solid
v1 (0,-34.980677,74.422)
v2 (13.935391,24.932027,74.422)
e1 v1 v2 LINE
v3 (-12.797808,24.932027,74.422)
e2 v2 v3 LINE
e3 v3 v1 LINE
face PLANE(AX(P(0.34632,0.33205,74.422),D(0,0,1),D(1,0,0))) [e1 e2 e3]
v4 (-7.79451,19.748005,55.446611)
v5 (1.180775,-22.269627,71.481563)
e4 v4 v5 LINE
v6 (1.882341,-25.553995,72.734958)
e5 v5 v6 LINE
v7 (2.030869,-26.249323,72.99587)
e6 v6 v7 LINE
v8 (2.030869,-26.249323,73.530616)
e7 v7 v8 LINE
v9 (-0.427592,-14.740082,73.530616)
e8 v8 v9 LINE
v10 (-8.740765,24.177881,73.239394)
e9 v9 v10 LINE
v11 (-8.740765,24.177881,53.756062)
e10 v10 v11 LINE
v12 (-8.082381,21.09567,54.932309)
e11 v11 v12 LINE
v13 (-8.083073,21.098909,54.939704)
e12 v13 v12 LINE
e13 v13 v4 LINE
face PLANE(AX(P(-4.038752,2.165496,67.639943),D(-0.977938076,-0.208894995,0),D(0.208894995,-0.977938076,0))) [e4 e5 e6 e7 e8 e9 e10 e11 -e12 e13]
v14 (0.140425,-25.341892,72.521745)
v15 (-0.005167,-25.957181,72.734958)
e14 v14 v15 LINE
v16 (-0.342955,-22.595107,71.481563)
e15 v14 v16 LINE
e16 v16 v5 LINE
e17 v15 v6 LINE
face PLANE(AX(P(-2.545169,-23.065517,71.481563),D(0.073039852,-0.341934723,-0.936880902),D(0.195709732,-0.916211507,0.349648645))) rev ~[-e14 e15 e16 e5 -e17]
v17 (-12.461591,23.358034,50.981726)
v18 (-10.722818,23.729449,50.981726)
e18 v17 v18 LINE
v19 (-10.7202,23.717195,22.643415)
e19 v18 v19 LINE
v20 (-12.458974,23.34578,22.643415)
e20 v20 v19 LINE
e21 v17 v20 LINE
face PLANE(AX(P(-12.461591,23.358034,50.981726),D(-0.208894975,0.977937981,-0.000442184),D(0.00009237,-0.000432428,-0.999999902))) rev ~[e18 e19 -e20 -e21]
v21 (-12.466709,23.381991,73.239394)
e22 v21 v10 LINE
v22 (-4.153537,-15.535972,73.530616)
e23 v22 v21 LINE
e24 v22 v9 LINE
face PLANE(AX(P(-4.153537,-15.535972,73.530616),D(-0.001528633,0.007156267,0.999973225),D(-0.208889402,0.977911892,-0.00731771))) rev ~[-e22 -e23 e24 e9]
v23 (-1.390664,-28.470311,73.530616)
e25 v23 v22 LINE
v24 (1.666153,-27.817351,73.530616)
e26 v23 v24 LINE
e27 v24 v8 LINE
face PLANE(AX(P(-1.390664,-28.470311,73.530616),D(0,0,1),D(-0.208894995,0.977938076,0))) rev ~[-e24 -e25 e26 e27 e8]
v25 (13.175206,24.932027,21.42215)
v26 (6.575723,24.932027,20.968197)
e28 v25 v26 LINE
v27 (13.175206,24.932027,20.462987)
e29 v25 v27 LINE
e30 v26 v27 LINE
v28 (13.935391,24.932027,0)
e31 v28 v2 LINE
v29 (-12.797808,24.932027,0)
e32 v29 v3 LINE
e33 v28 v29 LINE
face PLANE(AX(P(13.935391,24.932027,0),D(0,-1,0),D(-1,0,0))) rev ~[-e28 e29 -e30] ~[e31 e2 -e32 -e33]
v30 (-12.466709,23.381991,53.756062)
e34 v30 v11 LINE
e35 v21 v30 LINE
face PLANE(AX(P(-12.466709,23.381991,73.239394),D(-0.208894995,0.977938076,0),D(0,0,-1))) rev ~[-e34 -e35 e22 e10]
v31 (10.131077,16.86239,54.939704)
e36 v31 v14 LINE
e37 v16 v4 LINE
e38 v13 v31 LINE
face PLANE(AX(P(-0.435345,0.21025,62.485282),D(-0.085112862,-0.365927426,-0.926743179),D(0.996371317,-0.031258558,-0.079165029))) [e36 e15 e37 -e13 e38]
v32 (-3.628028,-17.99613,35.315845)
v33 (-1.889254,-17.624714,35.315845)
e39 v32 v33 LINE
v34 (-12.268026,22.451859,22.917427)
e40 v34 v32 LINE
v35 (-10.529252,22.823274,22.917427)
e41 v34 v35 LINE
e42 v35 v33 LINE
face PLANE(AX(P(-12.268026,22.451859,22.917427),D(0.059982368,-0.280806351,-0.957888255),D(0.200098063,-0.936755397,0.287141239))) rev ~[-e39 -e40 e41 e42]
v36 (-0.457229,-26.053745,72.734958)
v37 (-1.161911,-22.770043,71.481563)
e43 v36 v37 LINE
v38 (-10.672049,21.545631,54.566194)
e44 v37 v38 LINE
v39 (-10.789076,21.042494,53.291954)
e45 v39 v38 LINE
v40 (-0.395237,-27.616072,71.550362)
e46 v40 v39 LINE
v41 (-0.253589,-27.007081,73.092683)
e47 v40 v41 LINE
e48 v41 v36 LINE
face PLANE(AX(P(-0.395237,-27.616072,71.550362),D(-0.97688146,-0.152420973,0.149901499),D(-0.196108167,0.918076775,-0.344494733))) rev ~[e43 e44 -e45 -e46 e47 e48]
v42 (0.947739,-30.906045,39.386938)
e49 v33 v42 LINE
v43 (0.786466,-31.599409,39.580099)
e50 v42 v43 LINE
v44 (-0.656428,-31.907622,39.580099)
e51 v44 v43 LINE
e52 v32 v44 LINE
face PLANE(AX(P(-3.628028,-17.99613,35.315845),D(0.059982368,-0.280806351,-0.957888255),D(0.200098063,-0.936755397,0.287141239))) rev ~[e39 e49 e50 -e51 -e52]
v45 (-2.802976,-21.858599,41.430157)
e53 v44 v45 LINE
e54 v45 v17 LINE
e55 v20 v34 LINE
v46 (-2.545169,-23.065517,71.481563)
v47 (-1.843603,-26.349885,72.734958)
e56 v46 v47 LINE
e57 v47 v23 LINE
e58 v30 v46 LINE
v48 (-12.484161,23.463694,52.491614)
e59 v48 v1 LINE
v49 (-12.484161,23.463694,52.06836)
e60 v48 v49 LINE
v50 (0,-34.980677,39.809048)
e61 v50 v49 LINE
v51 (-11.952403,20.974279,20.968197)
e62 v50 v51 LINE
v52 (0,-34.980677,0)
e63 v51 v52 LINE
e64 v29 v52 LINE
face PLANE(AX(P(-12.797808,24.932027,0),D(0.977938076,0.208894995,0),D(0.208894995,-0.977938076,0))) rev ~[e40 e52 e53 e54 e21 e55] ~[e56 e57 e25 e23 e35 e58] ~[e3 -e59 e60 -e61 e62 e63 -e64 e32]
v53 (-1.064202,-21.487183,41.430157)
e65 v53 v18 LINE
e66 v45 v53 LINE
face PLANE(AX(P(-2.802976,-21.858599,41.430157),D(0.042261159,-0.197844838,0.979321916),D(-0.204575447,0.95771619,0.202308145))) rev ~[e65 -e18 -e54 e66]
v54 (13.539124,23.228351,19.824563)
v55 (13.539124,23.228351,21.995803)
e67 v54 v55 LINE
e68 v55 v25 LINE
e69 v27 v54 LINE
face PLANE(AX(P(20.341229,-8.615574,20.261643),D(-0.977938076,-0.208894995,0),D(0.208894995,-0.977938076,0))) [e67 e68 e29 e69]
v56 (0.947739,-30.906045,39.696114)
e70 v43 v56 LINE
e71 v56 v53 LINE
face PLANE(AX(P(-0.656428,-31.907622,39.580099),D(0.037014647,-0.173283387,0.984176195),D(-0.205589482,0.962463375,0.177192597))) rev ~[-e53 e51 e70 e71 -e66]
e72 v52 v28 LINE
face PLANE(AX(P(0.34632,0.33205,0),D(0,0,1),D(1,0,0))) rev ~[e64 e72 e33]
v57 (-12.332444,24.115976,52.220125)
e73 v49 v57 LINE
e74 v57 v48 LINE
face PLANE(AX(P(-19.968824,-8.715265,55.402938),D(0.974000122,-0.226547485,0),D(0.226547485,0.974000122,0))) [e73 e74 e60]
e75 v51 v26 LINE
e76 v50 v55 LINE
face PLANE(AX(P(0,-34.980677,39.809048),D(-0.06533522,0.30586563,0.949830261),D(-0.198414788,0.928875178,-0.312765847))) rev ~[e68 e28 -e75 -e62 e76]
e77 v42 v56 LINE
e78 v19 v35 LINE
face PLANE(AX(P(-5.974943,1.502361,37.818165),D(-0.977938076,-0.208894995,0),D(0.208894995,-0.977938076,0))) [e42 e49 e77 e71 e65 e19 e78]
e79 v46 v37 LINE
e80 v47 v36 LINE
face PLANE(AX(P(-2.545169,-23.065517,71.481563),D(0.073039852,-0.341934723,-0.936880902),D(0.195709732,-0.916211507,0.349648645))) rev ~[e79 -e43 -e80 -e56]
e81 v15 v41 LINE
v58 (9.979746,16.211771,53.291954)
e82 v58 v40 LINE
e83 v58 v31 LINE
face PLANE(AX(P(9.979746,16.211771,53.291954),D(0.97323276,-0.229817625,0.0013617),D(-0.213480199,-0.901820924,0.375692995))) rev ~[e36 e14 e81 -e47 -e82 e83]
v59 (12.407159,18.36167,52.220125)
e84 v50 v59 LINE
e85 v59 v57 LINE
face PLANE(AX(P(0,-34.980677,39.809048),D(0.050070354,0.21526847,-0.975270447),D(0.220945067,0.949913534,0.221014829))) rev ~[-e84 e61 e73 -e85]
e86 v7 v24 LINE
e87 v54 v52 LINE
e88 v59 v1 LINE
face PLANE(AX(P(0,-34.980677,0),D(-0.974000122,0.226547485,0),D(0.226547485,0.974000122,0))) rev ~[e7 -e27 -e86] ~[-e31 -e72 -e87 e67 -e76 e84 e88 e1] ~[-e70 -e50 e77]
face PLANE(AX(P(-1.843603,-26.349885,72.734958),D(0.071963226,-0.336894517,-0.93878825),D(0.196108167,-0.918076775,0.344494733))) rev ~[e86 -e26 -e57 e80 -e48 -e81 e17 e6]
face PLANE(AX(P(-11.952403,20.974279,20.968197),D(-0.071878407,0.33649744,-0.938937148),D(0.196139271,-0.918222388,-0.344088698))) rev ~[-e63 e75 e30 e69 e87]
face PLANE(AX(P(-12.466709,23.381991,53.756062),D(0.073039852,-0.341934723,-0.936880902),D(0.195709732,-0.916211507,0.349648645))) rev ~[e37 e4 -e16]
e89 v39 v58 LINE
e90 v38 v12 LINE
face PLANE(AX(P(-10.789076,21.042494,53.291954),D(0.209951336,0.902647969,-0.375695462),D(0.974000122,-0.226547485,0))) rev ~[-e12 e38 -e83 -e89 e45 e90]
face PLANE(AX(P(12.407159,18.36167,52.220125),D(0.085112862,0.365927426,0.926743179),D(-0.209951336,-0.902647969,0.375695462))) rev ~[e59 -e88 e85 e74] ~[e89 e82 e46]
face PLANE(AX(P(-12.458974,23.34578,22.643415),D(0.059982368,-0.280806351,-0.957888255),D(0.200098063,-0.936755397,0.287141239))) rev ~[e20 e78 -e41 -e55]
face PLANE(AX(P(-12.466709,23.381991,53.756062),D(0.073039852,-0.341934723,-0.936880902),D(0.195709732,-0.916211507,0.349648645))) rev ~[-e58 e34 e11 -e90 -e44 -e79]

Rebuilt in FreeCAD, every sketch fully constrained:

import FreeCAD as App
import Part
import Sketcher
from FreeCAD import Vector
Q = App.Units.Quantity

doc = App.newDocument("Part")
body = doc.addObject("PartDesign::Body", "Body")

# Sketch on XY plane
sketch1 = body.newObject("Sketcher::SketchObject", "Sketch")
sketch1.AttachmentSupport = (doc.getObject("XY_Plane"), [""])
sketch1.MapMode = "FlatFace"
sketch1.addGeometry([
    Part.LineSegment(Vector(14, 25, 0), Vector(-13, 25, 0)),
    Part.LineSegment(Vector(-13, 25, 0), Vector(0, -35, 0)),
    Part.LineSegment(Vector(0, -35, 0), Vector(14, 25, 0)),
], False)
sketch1.addConstraint([
    Sketcher.Constraint("Coincident", 0, 2, 1, 1),
    Sketcher.Constraint("Coincident", 1, 2, 2, 1),
    Sketcher.Constraint("Coincident", 2, 2, 0, 1),
    Sketcher.Constraint("Horizontal", 0),
    Sketcher.Constraint("PointOnObject", 1, 2, -2),
    Sketcher.Constraint("DistanceX", 0, 2, 0, 1, Q("26.733199 mm")),
    Sketcher.Constraint("Distance", 2, Q("61.512009 mm")),
    Sketcher.Constraint("DistanceX", 0, 2, -1, 1, Q("12.797808 mm")),
    Sketcher.Constraint("DistanceY", -1, 1, 0, 2, Q("24.932027 mm")),
])
pad1 = body.newObject("PartDesign::Pad", "Pad")
pad1.Profile = sketch1
pad1.Length = Q("2.93 in")

# Sketch on an angled plane
sketch2 = body.newObject("Sketcher::SketchObject", "Sketch001")
sketch2.Placement = App.Placement(Vector(7.718741, -1.79534, 0), App.Rotation(Vector(0.226547485, 0.974000122, 0), Vector(0, 0, 1.000000001), Vector(0.974000122, -0.226547485, 0), "ZXY"))
sketch2.addGeometry([
    Part.LineSegment(Vector(21, 52, 0), Vector(-34, 74, 0)),
    Part.LineSegment(Vector(-34, 74, 0), Vector(-34, 40, 0)),
    Part.LineSegment(Vector(-34, 40, 0), Vector(21, 52, 0)),
], False)
sketch2.addConstraint([
    Sketcher.Constraint("Coincident", 0, 2, 1, 1),
    Sketcher.Constraint("Coincident", 1, 2, 2, 1),
    Sketcher.Constraint("Coincident", 2, 2, 0, 1),
    Sketcher.Constraint("Vertical", 1),
    Sketcher.Constraint("DistanceY", -1, 1, 0, 2, Q("2.93 in")),
    Sketcher.Constraint("DistanceY", 1, 2, 1, 1, Q("34.612952 mm")),
    Sketcher.Constraint("Distance", 2, Q("56.15495 mm")),
    Sketcher.Constraint("DistanceX", -1, 1, 2, 2, Q("20.695079 mm")),
    Sketcher.Constraint("Distance", 0, Q("59.095404 mm")),
])
pocket1 = body.newObject("PartDesign::Pocket", "Pocket")
pocket1.Profile = sketch2
pocket1.Length = Q("1 in")

# Sketch on an angled plane
sketch3 = body.newObject("Sketcher::SketchObject", "Sketch002")
sketch3.Placement = App.Placement(Vector(-7.146076, -1.526456, 0), App.Rotation(Vector(0.208894995, -0.977938076, 0), Vector(0, 0, 0.999999999), Vector(-0.977938076, -0.208894995, 0), "ZXY"))
sketch3.addGeometry([
    Part.LineSegment(Vector(34, 0, 0), Vector(34, 40, 0)),
    Part.LineSegment(Vector(34, 40, 0), Vector(-23, 21, 0)),
    Part.LineSegment(Vector(-23, 21, 0), Vector(34, 0, 0)),
], False)
sketch3.addConstraint([
    Sketcher.Constraint("Coincident", 0, 2, 1, 1),
    Sketcher.Constraint("Coincident", 1, 2, 2, 1),
    Sketcher.Constraint("Coincident", 2, 2, 0, 1),
    Sketcher.Constraint("Vertical", 0),
    Sketcher.Constraint("PointOnObject", 2, 2, -1),
    Sketcher.Constraint("DistanceY", 0, 1, 0, 2, Q("39.809048 mm")),
    Sketcher.Constraint("Distance", 2, Q("60.938348 mm")),
    Sketcher.Constraint("DistanceX", 1, 2, 0, 2, Q("57.217279 mm")),
    Sketcher.Constraint("DistanceX", -1, 1, 0, 2, Q("34.208936 mm")),
])
pocket2 = body.newObject("PartDesign::Pocket", "Pocket001")
pocket2.Profile = sketch3
pocket2.Length = Q("1 in")

# Sketch on an angled plane
sketch4 = body.newObject("Sketcher::SketchObject", "Sketch003")
sketch4.Placement = App.Placement(Vector(-7.146076, -1.526456, 0), App.Rotation(Vector(0.208894995, -0.977938076, 0), Vector(0, 0, 0.999999999), Vector(-0.977938076, -0.208894995, 0), "ZXY"))
sketch4.addGeometry([
    Part.LineSegment(Vector(14.3, 73.5, 0), Vector(-25.5, 73.2, 0)),  # 0
    Part.LineSegment(Vector(-25.5, 73.2, 0), Vector(-25.5, 53.8, 0)),  # 1
    Part.LineSegment(Vector(-25.5, 53.8, 0), Vector(22, 71.5, 0)),  # 2
    Part.LineSegment(Vector(22, 71.5, 0), Vector(25.4, 72.7, 0)),  # 3
    Part.LineSegment(Vector(25.4, 72.7, 0), Vector(27.6, 73.5, 0)),  # 4
    Part.LineSegment(Vector(27.6, 73.5, 0), Vector(14.3, 73.5, 0)),  # 5
], False)
sketch4.addConstraint([
    Sketcher.Constraint("Coincident", 0, 2, 1, 1),
    Sketcher.Constraint("Coincident", 1, 2, 2, 1),
    Sketcher.Constraint("Coincident", 2, 2, 3, 1),
    Sketcher.Constraint("Coincident", 3, 2, 4, 1),
    Sketcher.Constraint("Coincident", 4, 2, 5, 1),
    Sketcher.Constraint("Coincident", 5, 2, 0, 1),
    Sketcher.Constraint("Vertical", 1),
    Sketcher.Constraint("Horizontal", 5),
    Sketcher.Constraint("Parallel", 2, 3),
    Sketcher.Constraint("DistanceY", 1, 2, 1, 1, Q("19.483332 mm")),
    Sketcher.Constraint("DistanceX", -1, 1, 4, 2, Q("27.551698 mm")),
    Sketcher.Constraint("DistanceY", 1, 2, 2, 2, Q("17.725501 mm")),
    Sketcher.Constraint("Distance", 2, Q("50.695181 mm")),
    Sketcher.Constraint("Distance", 4, Q("2.309639 mm")),
    Sketcher.Constraint("DistanceX", 5, 2, 5, 1, Q("13.226133 mm")),
    Sketcher.Constraint("DistanceY", -1, 1, 1, 2, Q("53.756062 mm")),
    Sketcher.Constraint("DistanceY", -1, 1, 3, 2, Q("72.734958 mm")),
    Sketcher.Constraint("DistanceX", 3, 2, 4, 2, Q("2.168262 mm")),
])
pocket3 = body.newObject("PartDesign::Pocket", "Pocket002")
pocket3.Profile = sketch4
pocket3.Length = Q("0.15 in")

# Sketch on an angled plane
sketch5 = body.newObject("Sketcher::SketchObject", "Sketch004")
sketch5.Placement = App.Placement(Vector(-7.146076, -1.526456, 0), App.Rotation(Vector(0.208894995, -0.977938076, 0), Vector(0, 0, 0.999999999), Vector(-0.977938076, -0.208894995, 0), "ZXY"))
sketch5.addGeometry([
    Part.LineSegment(Vector(20.8, 41.4, 0), Vector(-25.4, 51, 0)),  # 0
    Part.LineSegment(Vector(-25.4, 51, 0), Vector(-25.4, 22.6, 0)),  # 1
    Part.LineSegment(Vector(-25.4, 22.6, 0), Vector(-24.5, 22.9, 0)),  # 2
    Part.LineSegment(Vector(-24.5, 22.9, 0), Vector(16.8, 35.3, 0)),  # 3
    Part.LineSegment(Vector(16.8, 35.3, 0), Vector(31.1, 39.6, 0)),  # 4
    Part.LineSegment(Vector(31.1, 39.6, 0), Vector(20.8, 41.4, 0)),  # 5
], False)
sketch5.addConstraint([
    Sketcher.Constraint("Coincident", 0, 2, 1, 1),
    Sketcher.Constraint("Coincident", 1, 2, 2, 1),
    Sketcher.Constraint("Coincident", 2, 2, 3, 1),
    Sketcher.Constraint("Coincident", 3, 2, 4, 1),
    Sketcher.Constraint("Coincident", 4, 2, 5, 1),
    Sketcher.Constraint("Coincident", 5, 2, 0, 1),
    Sketcher.Constraint("Parallel", 2, 3),
    Sketcher.Constraint("Parallel", 3, 4),
    Sketcher.Constraint("DistanceY", -1, 1, 4, 2, Q("39.580099 mm")),
    Sketcher.Constraint("DistanceY", 2, 2, 0, 2, Q("28.0643 mm")),
    Sketcher.Constraint("DistanceX", 0, 2, 3, 2, Q("42.287098 mm")),
    Sketcher.Constraint("Distance", 4, Q("14.85072 mm")),
    Sketcher.Constraint("Distance", 5, Q("10.440941 mm")),
    Sketcher.Constraint("DistanceX", -1, 1, 5, 2, Q("20.790828 mm")),
    Sketcher.Constraint("DistanceX", 0, 2, 1, 2, Q("0.012531 mm")),
    Sketcher.Constraint("DistanceY", 1, 2, 0, 2, Q("28.338311 mm")),
    Sketcher.Constraint("DistanceX", 2, 2, 3, 2, Q("41.36048 mm")),
    Sketcher.Constraint("DistanceY", 3, 2, 5, 2, Q("6.114312 mm")),
])
pocket4 = body.newObject("PartDesign::Pocket", "Pocket003")
pocket4.Profile = sketch5
pocket4.Length = Q("0.07 in")

# Sketch on an angled plane
sketch6 = body.newObject("Sketcher::SketchObject", "Sketch005")
sketch6.Placement = App.Placement(Vector(4.780763, 20.554031, 52.054879), App.Rotation(Vector(0.996371317, -0.031258558, -0.079165029), Vector(0, -0.930118284, 0.367260097), Vector(-0.085112862, -0.365927426, -0.926743179), "ZXY"))
sketch6.addGeometry([
    Part.LineSegment(Vector(5, 4, 0), Vector(-5, 52, 0)),
    Part.LineSegment(Vector(-5, 52, 0), Vector(-16, 0, 0)),
    Part.LineSegment(Vector(-16, 0, 0), Vector(5, 4, 0)),
], False)
sketch6.addConstraint([
    Sketcher.Constraint("Coincident", 0, 2, 1, 1),
    Sketcher.Constraint("Coincident", 1, 2, 2, 1),
    Sketcher.Constraint("Coincident", 2, 2, 0, 1),
    Sketcher.Constraint("PointOnObject", 1, 2, -1),
    Sketcher.Constraint("Distance", 1, Q("53.000541 mm")),
    Sketcher.Constraint("DistanceX", 0, 2, -1, 1, Q("5.194851 mm")),
    Sketcher.Constraint("DistanceX", 1, 2, 2, 2, Q("20.84446 mm")),
    Sketcher.Constraint("Distance", 0, Q("48.599275 mm")),
    Sketcher.Constraint("Distance", 2, Q("21.323223 mm")),
])
pocket5 = body.newObject("PartDesign::Pocket", "Pocket004")
pocket5.Profile = sketch6
pocket5.Length = Q("0.07 in")

doc.recompute()
